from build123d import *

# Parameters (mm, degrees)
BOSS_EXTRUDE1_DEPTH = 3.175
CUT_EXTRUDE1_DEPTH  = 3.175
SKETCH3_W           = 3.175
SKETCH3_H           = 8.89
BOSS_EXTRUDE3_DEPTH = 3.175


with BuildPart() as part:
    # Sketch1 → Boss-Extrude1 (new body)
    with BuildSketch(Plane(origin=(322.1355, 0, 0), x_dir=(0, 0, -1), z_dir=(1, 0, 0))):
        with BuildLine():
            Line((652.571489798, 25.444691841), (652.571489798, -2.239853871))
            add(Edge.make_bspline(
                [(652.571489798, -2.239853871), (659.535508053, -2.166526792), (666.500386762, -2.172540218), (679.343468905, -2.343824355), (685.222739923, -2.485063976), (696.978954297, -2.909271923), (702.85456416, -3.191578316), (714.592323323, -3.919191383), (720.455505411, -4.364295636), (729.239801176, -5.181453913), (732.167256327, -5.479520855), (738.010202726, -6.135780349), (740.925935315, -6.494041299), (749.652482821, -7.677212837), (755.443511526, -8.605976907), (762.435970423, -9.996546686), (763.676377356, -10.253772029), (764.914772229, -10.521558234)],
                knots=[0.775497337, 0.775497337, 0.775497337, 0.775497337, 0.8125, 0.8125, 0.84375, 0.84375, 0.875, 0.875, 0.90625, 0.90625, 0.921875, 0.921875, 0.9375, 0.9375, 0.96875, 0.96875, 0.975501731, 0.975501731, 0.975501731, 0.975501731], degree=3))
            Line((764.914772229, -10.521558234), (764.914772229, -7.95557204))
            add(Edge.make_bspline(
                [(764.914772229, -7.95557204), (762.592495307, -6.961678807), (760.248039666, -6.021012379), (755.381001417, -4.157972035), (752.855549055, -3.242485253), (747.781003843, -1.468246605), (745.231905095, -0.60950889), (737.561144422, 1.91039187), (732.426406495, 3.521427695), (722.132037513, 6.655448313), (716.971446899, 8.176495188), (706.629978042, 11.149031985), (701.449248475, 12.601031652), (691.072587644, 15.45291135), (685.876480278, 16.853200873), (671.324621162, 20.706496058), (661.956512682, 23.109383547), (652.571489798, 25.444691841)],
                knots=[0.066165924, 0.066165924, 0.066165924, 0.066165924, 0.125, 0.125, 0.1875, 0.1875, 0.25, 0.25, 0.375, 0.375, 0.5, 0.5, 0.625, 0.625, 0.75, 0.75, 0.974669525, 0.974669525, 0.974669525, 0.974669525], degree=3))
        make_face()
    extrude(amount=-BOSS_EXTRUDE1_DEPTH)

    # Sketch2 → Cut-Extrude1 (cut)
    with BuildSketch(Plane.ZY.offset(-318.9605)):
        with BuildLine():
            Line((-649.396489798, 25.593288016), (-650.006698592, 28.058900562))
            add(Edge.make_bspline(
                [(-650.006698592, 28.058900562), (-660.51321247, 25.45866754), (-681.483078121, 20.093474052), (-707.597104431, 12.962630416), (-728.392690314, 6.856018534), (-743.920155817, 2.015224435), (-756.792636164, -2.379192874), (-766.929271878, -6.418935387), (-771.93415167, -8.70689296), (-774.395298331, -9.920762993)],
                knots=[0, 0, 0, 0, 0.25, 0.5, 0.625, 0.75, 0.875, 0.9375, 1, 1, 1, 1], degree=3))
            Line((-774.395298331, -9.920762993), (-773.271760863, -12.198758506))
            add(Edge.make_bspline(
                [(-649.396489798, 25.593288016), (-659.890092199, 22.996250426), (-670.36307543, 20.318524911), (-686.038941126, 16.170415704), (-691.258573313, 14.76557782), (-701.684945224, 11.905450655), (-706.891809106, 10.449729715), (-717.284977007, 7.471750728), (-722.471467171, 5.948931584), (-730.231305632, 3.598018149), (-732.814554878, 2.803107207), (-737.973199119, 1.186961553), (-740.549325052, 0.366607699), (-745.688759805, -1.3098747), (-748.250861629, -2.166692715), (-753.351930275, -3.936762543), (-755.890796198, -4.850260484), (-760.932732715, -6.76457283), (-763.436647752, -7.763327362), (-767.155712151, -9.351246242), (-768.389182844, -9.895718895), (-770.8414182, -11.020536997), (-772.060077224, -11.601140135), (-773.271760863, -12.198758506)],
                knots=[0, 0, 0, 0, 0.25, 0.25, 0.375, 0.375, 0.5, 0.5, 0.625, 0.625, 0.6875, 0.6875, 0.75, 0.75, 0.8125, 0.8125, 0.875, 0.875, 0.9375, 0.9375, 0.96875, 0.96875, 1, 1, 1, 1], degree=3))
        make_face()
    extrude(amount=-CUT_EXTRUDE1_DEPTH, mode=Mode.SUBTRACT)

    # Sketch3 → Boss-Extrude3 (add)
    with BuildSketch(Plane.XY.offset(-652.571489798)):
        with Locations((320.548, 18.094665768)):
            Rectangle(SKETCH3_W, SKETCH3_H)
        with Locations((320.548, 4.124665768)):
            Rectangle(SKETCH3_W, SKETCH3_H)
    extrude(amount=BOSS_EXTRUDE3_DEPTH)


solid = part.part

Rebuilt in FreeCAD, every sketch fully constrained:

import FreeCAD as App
import Part
import Sketcher

V = App.Vector
Q = App.Units.Quantity

doc = App.newDocument("Part")
body = doc.addObject("PartDesign::Body", "Body")

# Sketch on YZ plane
sketch1 = body.newObject("Sketcher::SketchObject", "Sketch")
sketch1.AttachmentSupport = (doc.getObject("YZ_Plane"), [""])
sketch1.MapMode = "FlatFace"
sketch1.AttachmentOffset = App.Placement(V(0, 0, 12.6825 * 25.4), App.Rotation())
sketch1.addGeometry(Part.LineSegment(V(25.444692, -652.57149, 0), V(-2.239854, -652.57149, 0)), False)
sketch1.addGeometry(Part.BSplineCurve([V(-2.239854, -652.57149, 0), V(-2.166527, -659.535508, 0), V(-2.17254, -666.500387, 0), V(-2.343824, -679.343469, 0), V(-2.485064, -685.22274, 0), V(-2.909272, -696.978954, 0), V(-3.191578, -702.854564, 0), V(-3.919191, -714.592323, 0), V(-4.364296, -720.455505, 0), V(-5.181454, -729.239801, 0), V(-5.479521, -732.167256, 0), V(-6.13578, -738.010203, 0), V(-6.494041, -740.925935, 0), V(-7.677213, -749.652483, 0), V(-8.605977, -755.443512, 0), V(-9.996547, -762.43597, 0), V(-10.253772, -763.676377, 0), V(-10.521558, -764.914772, 0)], [4, 2, 2, 2, 2, 2, 2, 2, 4], [0.775497337, 0.8125, 0.84375, 0.875, 0.90625, 0.921875, 0.9375, 0.96875, 0.975501731], False, 3, [1, 1, 1, 1, 1, 1, 1, 1, 1, 1, 1, 1, 1, 1, 1, 1, 1, 1], False), False)
sketch1.addGeometry(Part.LineSegment(V(-10.521558, -764.914772, 0), V(-7.955572, -764.914772, 0)), False)
sketch1.addGeometry(Part.BSplineCurve([V(-7.955572, -764.914772, 0), V(-6.961679, -762.592495, 0), V(-6.021012, -760.24804, 0), V(-4.157972, -755.381001, 0), V(-3.242485, -752.855549, 0), V(-1.468247, -747.781004, 0), V(-0.609509, -745.231905, 0), V(1.910392, -737.561144, 0), V(3.521428, -732.426406, 0), V(6.655448, -722.132038, 0), V(8.176495, -716.971447, 0), V(11.149032, -706.629978, 0), V(12.601032, -701.449248, 0), V(15.452911, -691.072588, 0), V(16.853201, -685.87648, 0), V(20.706496, -671.324621, 0), V(23.109384, -661.956513, 0), V(25.444692, -652.57149, 0)], [4, 2, 2, 2, 2, 2, 2, 2, 4], [0.066165924, 0.125, 0.1875, 0.25, 0.375, 0.5, 0.625, 0.75, 0.974669525], False, 3, [1, 1, 1, 1, 1, 1, 1, 1, 1, 1, 1, 1, 1, 1, 1, 1, 1, 1], False), False)
sketch1.addConstraint(Sketcher.Constraint("Block", 1))
sketch1.addConstraint(Sketcher.Constraint("Block", 3))
sketch1.addConstraint(Sketcher.Constraint("Coincident", 0, 2, 1, 1))
sketch1.addConstraint(Sketcher.Constraint("Coincident", 1, 2, 2, 1))
sketch1.addConstraint(Sketcher.Constraint("Coincident", 2, 2, 3, 1))
sketch1.addConstraint(Sketcher.Constraint("Coincident", 3, 2, 0, 1))
pad1 = body.newObject("PartDesign::Pad", "Pad")
pad1.Profile = sketch1
pad1.Length = Q("0.125 in")
pad1.Reversed = True

# Sketch on YZ plane
sketch2 = body.newObject("Sketcher::SketchObject", "Sketch001")
sketch2.AttachmentSupport = (doc.getObject("YZ_Plane"), [""])
sketch2.MapMode = "FlatFace"
sketch2.AttachmentOffset = App.Placement(V(0, 0, 12.5575 * 25.4), App.Rotation())
sketch2.addGeometry(Part.LineSegment(V(25.593288, -649.39649, 0), V(28.058901, -650.006699, 0)), False)
sketch2.addGeometry(Part.BSplineCurve([V(28.058901, -650.006699, 0), V(25.458668, -660.513212, 0), V(20.093474, -681.483078, 0), V(12.96263, -707.597104, 0), V(6.856019, -728.39269, 0), V(2.015224, -743.920156, 0), V(-2.379193, -756.792636, 0), V(-6.418935, -766.929272, 0), V(-8.706893, -771.934152, 0), V(-9.920763, -774.395298, 0)], [4, 1, 1, 1, 1, 1, 1, 4], [0, 0.25, 0.5, 0.625, 0.75, 0.875, 0.9375, 1], False, 3, [1, 1, 1, 1, 1, 1, 1, 1, 1, 1], False), False)
sketch2.addGeometry(Part.LineSegment(V(-9.920763, -774.395298, 0), V(-12.198759, -773.271761, 0)), False)
sketch2.addGeometry(Part.BSplineCurve([V(25.593288, -649.39649, 0), V(22.99625, -659.890092, 0), V(20.318525, -670.363075, 0), V(16.170416, -686.038941, 0), V(14.765578, -691.258573, 0), V(11.905451, -701.684945, 0), V(10.44973, -706.891809, 0), V(7.471751, -717.284977, 0), V(5.948932, -722.471467, 0), V(3.598018, -730.231306, 0), V(2.803107, -732.814555, 0), V(1.186962, -737.973199, 0), V(0.366608, -740.549325, 0), V(-1.309875, -745.68876, 0), V(-2.166693, -748.250862, 0), V(-3.936763, -753.35193, 0), V(-4.85026, -755.890796, 0), V(-6.764573, -760.932733, 0), V(-7.763327, -763.436648, 0), V(-9.351246, -767.155712, 0), V(-9.895719, -768.389183, 0), V(-11.020537, -770.841418, 0), V(-11.60114, -772.060077, 0), V(-12.198759, -773.271761, 0)], [4, 2, 2, 2, 2, 2, 2, 2, 2, 2, 2, 4], [0, 0.25, 0.375, 0.5, 0.625, 0.6875, 0.75, 0.8125, 0.875, 0.9375, 0.96875, 1], False, 3, [1, 1, 1, 1, 1, 1, 1, 1, 1, 1, 1, 1, 1, 1, 1, 1, 1, 1, 1, 1, 1, 1, 1, 1], False), False)
sketch2.addConstraint(Sketcher.Constraint("Block", 1))
sketch2.addConstraint(Sketcher.Constraint("Block", 3))
sketch2.addConstraint(Sketcher.Constraint("Coincident", 0, 2, 1, 1))
sketch2.addConstraint(Sketcher.Constraint("Coincident", 1, 2, 2, 1))
sketch2.addConstraint(Sketcher.Constraint("Coincident", 2, 2, 3, 2))
sketch2.addConstraint(Sketcher.Constraint("Coincident", 3, 1, 0, 1))
pocket1 = body.newObject("PartDesign::Pocket", "Pocket")
pocket1.Profile = sketch2
pocket1.Length = Q("0.125 in")
pocket1.Reversed = True

# Sketch on XY plane
sketch3 = body.newObject("Sketcher::SketchObject", "Sketch002")
sketch3.AttachmentSupport = (doc.getObject("XY_Plane"), [""])
sketch3.MapMode = "FlatFace"
sketch3.AttachmentOffset = App.Placement(V(0, 0, -652.57149), App.Rotation())
sketch3.addGeometry(Part.LineSegment(V(319, 22.5, 0), V(319, 13.6, 0)), False)
sketch3.addGeometry(Part.LineSegment(V(319, 13.6, 0), V(322.1, 13.6, 0)), False)
sketch3.addGeometry(Part.LineSegment(V(322.1, 13.6, 0), V(322.1, 22.5, 0)), False)
sketch3.addGeometry(Part.LineSegment(V(322.1, 22.5, 0), V(319, 22.5, 0)), False)
sketch3.addGeometry(Part.LineSegment(V(319, 8.6, 0), V(319, -0.3, 0)), False)
sketch3.addGeometry(Part.LineSegment(V(319, -0.3, 0), V(322.1, -0.3, 0)), False)
sketch3.addGeometry(Part.LineSegment(V(322.1, -0.3, 0), V(322.1, 8.6, 0)), False)
sketch3.addGeometry(Part.LineSegment(V(322.1, 8.6, 0), V(319, 8.6, 0)), False)
sketch3.addConstraint(Sketcher.Constraint("Coincident", 0, 2, 1, 1))
sketch3.addConstraint(Sketcher.Constraint("Coincident", 1, 2, 2, 1))
sketch3.addConstraint(Sketcher.Constraint("Coincident", 2, 2, 3, 1))
sketch3.addConstraint(Sketcher.Constraint("Coincident", 3, 2, 0, 1))
sketch3.addConstraint(Sketcher.Constraint("Coincident", 4, 2, 5, 1))
sketch3.addConstraint(Sketcher.Constraint("Coincident", 5, 2, 6, 1))
sketch3.addConstraint(Sketcher.Constraint("Coincident", 6, 2, 7, 1))
sketch3.addConstraint(Sketcher.Constraint("Coincident", 7, 2, 4, 1))
sketch3.addConstraint(Sketcher.Constraint("Vertical", 0))
sketch3.addConstraint(Sketcher.Constraint("Horizontal", 1))
sketch3.addConstraint(Sketcher.Constraint("Vertical", 2))
sketch3.addConstraint(Sketcher.Constraint("Horizontal", 3))
sketch3.addConstraint(Sketcher.Constraint("Vertical", 4))
sketch3.addConstraint(Sketcher.Constraint("Horizontal", 5))
sketch3.addConstraint(Sketcher.Constraint("Vertical", 6))
sketch3.addConstraint(Sketcher.Constraint("Horizontal", 7))
sketch3.addConstraint(Sketcher.Constraint("Vertical", 3, 2, 4, 2))
sketch3.addConstraint(Sketcher.Constraint("Vertical", 2, 2, 5, 2))
sketch3.addConstraint(Sketcher.Constraint("Equal", 2, 4))
sketch3.addConstraint(Sketcher.Constraint("DistanceY", 0, 2, 0, 1, Q("0.35 in")))
sketch3.addConstraint(Sketcher.Constraint("DistanceY", 4, 2, 3, 2, Q("0.9 in")))
sketch3.addConstraint(Sketcher.Constraint("DistanceX", 1, 1, 1, 2, Q("0.125 in")))
sketch3.addConstraint(Sketcher.Constraint("DistanceX", -1, 1, 0, 2, Q("12.5575 in")))
sketch3.addConstraint(Sketcher.Constraint("DistanceY", -1, 1, 0, 2, Q("13.649666 mm")))
pad2 = body.newObject("PartDesign::Pad", "Pad001")
pad2.Profile = sketch3
pad2.Length = Q("0.125 in")

doc.recompute()
